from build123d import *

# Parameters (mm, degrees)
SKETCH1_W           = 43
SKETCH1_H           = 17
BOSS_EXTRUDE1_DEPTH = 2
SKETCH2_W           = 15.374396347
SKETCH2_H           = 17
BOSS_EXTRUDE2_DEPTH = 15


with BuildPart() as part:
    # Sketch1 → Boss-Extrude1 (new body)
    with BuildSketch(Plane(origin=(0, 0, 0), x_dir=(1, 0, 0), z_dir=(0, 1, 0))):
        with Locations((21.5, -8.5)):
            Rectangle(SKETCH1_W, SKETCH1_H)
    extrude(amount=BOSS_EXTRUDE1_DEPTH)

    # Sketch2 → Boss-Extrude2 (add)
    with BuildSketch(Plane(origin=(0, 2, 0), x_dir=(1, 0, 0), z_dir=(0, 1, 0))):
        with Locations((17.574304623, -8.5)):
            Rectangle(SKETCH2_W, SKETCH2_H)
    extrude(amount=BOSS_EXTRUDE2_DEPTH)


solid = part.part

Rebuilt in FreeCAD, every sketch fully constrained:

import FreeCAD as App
import Part
import Sketcher
from FreeCAD import Vector

doc = App.newDocument("Part")
params = doc.addObject("Spreadsheet::Sheet", "Params")
for row, (alias, value) in enumerate([
    ("sketch1_width", "43 mm"),
    ("sketch1_height", "17 mm"),
    ("pad1_length", "2 mm"),
    ("sketch2_height", "17 mm"),
    ("pad2_length", "15 mm"),
], start=1):
    params.set(f"A{row}", alias)
    params.set(f"B{row}", "=" + value)
    params.setAlias(f"B{row}", alias)

body = doc.addObject("PartDesign::Body", "Body")

# Sketch on XZ plane
sketch1 = body.newObject("Sketcher::SketchObject", "Sketch")
sketch1.AttachmentSupport = (doc.getObject("XZ_Plane"), [""])
sketch1.MapMode = "FlatFace"
sketch1.addGeometry([
    Part.LineSegment(Vector(0, 0, 0), Vector(0, 17, 0)),
    Part.LineSegment(Vector(0, 17, 0), Vector(43, 17, 0)),
    Part.LineSegment(Vector(43, 17, 0), Vector(43, 0, 0)),
    Part.LineSegment(Vector(43, 0, 0), Vector(0, 0, 0)),
], False)
sketch1.addConstraint([
    Sketcher.Constraint("Coincident", 0, 2, 1, 1),
    Sketcher.Constraint("Coincident", 1, 2, 2, 1),
    Sketcher.Constraint("Coincident", 2, 2, 3, 1),
    Sketcher.Constraint("Coincident", 3, 2, 0, 1),
    Sketcher.Constraint("Vertical", 0),
    Sketcher.Constraint("Horizontal", 1),
    Sketcher.Constraint("Vertical", 2),
    Sketcher.Constraint("Horizontal", 3),
    Sketcher.Constraint("Coincident", 3, 2, -1, 1),
    Sketcher.Constraint("DistanceX", 1, 1, 1, 2, 43.0),
    Sketcher.Constraint("DistanceY", 0, 1, 0, 2, 17.0),
])
sketch1.setExpression("Constraints[9]", "Params.sketch1_width")
sketch1.setExpression("Constraints[10]", "Params.sketch1_height")
pad1 = body.newObject("PartDesign::Pad", "Pad")
pad1.Profile = sketch1
pad1.setExpression("Length", "Params.pad1_length")
pad1.Reversed = True

# Sketch on XZ plane
sketch2 = body.newObject("Sketcher::SketchObject", "Sketch001")
sketch2.AttachmentSupport = (doc.getObject("XZ_Plane"), [""])
sketch2.MapMode = "FlatFace"
sketch2.AttachmentOffset = App.Placement(Vector(0, 0, -2), App.Rotation())
sketch2.addGeometry([
    Part.LineSegment(Vector(10, 0, 0), Vector(10, 17, 0)),
    Part.LineSegment(Vector(10, 17, 0), Vector(25, 17, 0)),
    Part.LineSegment(Vector(25, 17, 0), Vector(25, 0, 0)),
    Part.LineSegment(Vector(25, 0, 0), Vector(10, 0, 0)),
], False)
sketch2.addConstraint([
    Sketcher.Constraint("Coincident", 0, 2, 1, 1),
    Sketcher.Constraint("Coincident", 1, 2, 2, 1),
    Sketcher.Constraint("Coincident", 2, 2, 3, 1),
    Sketcher.Constraint("Coincident", 3, 2, 0, 1),
    Sketcher.Constraint("Vertical", 0),
    Sketcher.Constraint("Horizontal", 1),
    Sketcher.Constraint("Vertical", 2),
    Sketcher.Constraint("Horizontal", 3),
    Sketcher.Constraint("PointOnObject", 2, 2, -1),
    Sketcher.Constraint("DistanceY", 0, 1, 0, 2, 17.0),
    Sketcher.Constraint("DistanceX", 1, 1, 1, 2, 15.374396),
    Sketcher.Constraint("DistanceX", -1, 1, 0, 2, 9.887106),
])
sketch2.setExpression("Constraints[9]", "Params.sketch2_height")
pad2 = body.newObject("PartDesign::Pad", "Pad001")
pad2.Profile = sketch2
pad2.setExpression("Length", "Params.pad2_length")
pad2.Reversed = True

doc.recompute()
